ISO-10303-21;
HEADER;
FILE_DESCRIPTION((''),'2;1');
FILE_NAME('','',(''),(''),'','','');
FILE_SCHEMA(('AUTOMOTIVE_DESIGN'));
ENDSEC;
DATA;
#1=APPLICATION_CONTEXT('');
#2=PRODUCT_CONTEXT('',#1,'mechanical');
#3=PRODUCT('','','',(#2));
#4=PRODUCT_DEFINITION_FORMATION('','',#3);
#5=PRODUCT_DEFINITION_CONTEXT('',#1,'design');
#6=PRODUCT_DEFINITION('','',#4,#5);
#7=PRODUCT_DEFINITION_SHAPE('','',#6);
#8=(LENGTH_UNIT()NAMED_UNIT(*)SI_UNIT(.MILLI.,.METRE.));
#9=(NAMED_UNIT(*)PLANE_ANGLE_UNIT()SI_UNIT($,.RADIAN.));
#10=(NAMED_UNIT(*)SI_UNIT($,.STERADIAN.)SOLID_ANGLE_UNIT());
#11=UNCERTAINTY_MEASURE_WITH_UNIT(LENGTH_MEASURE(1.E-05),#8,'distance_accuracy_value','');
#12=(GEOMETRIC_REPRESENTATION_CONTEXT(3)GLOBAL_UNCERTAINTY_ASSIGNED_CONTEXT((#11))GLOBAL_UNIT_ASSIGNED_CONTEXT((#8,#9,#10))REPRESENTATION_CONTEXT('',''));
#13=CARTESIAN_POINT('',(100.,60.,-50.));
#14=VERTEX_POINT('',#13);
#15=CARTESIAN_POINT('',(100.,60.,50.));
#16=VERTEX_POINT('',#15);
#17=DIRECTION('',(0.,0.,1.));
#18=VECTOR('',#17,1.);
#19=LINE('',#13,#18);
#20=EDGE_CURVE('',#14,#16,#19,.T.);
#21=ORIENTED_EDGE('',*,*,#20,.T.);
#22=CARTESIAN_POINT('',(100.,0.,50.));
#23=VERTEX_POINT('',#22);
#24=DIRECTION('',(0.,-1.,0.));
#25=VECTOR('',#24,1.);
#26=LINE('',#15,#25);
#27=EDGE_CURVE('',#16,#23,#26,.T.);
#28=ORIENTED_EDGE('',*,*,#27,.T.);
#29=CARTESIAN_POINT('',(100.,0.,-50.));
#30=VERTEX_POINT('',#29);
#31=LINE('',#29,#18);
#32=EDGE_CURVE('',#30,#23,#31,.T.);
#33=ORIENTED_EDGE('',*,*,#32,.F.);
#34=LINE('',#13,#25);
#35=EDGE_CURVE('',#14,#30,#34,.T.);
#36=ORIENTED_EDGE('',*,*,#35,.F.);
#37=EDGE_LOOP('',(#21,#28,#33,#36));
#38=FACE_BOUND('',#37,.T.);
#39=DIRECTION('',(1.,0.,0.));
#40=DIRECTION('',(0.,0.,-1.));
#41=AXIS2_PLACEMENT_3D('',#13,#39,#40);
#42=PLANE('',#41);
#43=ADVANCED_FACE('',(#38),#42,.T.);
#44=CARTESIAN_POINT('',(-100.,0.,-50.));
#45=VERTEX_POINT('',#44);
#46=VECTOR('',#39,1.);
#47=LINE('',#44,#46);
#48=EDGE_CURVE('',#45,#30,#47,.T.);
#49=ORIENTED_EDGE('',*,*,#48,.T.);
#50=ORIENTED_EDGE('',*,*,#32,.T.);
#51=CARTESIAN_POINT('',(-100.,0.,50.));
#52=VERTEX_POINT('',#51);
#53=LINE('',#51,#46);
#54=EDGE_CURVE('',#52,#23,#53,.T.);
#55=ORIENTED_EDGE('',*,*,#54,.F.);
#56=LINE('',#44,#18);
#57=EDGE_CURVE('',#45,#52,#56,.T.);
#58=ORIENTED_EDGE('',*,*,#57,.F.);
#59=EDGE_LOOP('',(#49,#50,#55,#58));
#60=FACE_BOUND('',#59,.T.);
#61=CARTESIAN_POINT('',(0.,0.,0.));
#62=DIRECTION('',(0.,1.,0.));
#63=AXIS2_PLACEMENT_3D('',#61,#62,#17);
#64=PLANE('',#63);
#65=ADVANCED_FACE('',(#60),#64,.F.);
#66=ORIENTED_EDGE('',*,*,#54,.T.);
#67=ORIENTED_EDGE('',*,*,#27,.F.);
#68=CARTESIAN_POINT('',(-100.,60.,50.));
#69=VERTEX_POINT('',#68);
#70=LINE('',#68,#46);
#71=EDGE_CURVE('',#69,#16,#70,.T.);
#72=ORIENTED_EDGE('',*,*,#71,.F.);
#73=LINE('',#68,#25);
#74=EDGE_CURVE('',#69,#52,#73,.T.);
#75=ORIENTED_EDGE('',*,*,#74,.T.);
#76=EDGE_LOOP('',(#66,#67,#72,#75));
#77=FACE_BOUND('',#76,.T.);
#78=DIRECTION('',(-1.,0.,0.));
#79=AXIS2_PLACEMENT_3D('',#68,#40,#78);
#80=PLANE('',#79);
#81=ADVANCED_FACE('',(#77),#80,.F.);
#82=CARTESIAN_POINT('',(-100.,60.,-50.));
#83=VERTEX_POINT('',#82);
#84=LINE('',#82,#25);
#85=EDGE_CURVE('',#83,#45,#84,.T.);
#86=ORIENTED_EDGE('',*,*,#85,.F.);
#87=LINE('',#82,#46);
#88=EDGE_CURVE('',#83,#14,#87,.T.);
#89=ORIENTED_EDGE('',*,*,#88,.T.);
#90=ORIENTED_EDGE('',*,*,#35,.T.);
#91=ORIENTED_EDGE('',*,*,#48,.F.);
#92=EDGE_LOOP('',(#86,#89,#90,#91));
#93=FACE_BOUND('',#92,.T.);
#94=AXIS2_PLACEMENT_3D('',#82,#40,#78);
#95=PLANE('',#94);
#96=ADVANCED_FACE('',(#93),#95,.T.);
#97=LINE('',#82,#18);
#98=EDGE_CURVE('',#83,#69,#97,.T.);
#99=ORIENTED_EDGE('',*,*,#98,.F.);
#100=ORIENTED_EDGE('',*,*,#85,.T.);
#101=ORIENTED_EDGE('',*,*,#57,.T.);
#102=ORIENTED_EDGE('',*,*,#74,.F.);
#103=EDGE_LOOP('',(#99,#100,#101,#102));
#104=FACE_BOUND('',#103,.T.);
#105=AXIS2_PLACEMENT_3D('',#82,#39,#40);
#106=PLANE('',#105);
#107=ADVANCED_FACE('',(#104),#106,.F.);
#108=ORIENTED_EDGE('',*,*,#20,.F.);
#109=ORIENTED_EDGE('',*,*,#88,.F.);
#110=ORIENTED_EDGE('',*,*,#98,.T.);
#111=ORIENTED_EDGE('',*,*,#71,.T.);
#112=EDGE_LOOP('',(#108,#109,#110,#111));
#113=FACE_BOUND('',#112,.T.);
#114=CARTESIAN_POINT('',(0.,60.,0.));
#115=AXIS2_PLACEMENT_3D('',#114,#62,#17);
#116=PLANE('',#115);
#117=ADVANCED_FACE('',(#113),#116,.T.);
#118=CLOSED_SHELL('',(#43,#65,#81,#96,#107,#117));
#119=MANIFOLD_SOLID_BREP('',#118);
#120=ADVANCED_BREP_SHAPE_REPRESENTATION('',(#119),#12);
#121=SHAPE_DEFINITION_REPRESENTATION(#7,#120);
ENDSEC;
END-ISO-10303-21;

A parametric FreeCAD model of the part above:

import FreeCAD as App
import Part
import Sketcher

V = App.Vector
Q = App.Units.Quantity


def add_polygon(sketch, points):
    """Adds a closed chain of lines whose ends are joined by coincident constraints."""
    first, n = sketch.GeometryCount, len(points)
    for a, b in zip(points, points[1:] + points[:1]):
        sketch.addGeometry(Part.LineSegment(App.Vector(*a, 0), App.Vector(*b, 0)), False)
    for i in range(n):
        sketch.addConstraint(Sketcher.Constraint("Coincident", first + i, 2, first + (i + 1) % n, 1))

doc = App.newDocument("Part")
params = doc.addObject("Spreadsheet::Sheet", "Params")
for row, (alias, value) in enumerate([
    ("sketch1_width", "200 mm"),
    ("sketch1_height", "100 mm"),
    ("pad1_length", "60 mm"),
], start=1):
    params.set(f"A{row}", alias)
    params.set(f"B{row}", "=" + value)
    params.setAlias(f"B{row}", alias)

body = doc.addObject("PartDesign::Body", "Body")

# Sketch on XZ plane
sketch1 = body.newObject("Sketcher::SketchObject", "Sketch")
sketch1.AttachmentSupport = (doc.getObject("XZ_Plane"), [""])
sketch1.MapMode = "FlatFace"
add_polygon(sketch1, [(-100, -50), (-100, 50), (100, 50), (100, -50)])  # lines 0-3
sketch1.addConstraint([
    Sketcher.Constraint("Vertical", 0),
    Sketcher.Constraint("Horizontal", 1),
    Sketcher.Constraint("Vertical", 2),
    Sketcher.Constraint("Horizontal", 3),
    Sketcher.Constraint("Symmetric", 0, 2, 2, 2, -1, 1),
    Sketcher.Constraint("DistanceX", 1, 1, 1, 2, Q("200 mm")),
    Sketcher.Constraint("DistanceY", 0, 1, 0, 2, Q("100 mm")),
])
sketch1.setExpression("Constraints[9]", "Params.sketch1_width")
sketch1.setExpression("Constraints[10]", "Params.sketch1_height")
pad1 = body.newObject("PartDesign::Pad", "Pad")
pad1.Profile = sketch1
pad1.setExpression("Length", "Params.pad1_length")
pad1.Reversed = True

doc.recompute()
